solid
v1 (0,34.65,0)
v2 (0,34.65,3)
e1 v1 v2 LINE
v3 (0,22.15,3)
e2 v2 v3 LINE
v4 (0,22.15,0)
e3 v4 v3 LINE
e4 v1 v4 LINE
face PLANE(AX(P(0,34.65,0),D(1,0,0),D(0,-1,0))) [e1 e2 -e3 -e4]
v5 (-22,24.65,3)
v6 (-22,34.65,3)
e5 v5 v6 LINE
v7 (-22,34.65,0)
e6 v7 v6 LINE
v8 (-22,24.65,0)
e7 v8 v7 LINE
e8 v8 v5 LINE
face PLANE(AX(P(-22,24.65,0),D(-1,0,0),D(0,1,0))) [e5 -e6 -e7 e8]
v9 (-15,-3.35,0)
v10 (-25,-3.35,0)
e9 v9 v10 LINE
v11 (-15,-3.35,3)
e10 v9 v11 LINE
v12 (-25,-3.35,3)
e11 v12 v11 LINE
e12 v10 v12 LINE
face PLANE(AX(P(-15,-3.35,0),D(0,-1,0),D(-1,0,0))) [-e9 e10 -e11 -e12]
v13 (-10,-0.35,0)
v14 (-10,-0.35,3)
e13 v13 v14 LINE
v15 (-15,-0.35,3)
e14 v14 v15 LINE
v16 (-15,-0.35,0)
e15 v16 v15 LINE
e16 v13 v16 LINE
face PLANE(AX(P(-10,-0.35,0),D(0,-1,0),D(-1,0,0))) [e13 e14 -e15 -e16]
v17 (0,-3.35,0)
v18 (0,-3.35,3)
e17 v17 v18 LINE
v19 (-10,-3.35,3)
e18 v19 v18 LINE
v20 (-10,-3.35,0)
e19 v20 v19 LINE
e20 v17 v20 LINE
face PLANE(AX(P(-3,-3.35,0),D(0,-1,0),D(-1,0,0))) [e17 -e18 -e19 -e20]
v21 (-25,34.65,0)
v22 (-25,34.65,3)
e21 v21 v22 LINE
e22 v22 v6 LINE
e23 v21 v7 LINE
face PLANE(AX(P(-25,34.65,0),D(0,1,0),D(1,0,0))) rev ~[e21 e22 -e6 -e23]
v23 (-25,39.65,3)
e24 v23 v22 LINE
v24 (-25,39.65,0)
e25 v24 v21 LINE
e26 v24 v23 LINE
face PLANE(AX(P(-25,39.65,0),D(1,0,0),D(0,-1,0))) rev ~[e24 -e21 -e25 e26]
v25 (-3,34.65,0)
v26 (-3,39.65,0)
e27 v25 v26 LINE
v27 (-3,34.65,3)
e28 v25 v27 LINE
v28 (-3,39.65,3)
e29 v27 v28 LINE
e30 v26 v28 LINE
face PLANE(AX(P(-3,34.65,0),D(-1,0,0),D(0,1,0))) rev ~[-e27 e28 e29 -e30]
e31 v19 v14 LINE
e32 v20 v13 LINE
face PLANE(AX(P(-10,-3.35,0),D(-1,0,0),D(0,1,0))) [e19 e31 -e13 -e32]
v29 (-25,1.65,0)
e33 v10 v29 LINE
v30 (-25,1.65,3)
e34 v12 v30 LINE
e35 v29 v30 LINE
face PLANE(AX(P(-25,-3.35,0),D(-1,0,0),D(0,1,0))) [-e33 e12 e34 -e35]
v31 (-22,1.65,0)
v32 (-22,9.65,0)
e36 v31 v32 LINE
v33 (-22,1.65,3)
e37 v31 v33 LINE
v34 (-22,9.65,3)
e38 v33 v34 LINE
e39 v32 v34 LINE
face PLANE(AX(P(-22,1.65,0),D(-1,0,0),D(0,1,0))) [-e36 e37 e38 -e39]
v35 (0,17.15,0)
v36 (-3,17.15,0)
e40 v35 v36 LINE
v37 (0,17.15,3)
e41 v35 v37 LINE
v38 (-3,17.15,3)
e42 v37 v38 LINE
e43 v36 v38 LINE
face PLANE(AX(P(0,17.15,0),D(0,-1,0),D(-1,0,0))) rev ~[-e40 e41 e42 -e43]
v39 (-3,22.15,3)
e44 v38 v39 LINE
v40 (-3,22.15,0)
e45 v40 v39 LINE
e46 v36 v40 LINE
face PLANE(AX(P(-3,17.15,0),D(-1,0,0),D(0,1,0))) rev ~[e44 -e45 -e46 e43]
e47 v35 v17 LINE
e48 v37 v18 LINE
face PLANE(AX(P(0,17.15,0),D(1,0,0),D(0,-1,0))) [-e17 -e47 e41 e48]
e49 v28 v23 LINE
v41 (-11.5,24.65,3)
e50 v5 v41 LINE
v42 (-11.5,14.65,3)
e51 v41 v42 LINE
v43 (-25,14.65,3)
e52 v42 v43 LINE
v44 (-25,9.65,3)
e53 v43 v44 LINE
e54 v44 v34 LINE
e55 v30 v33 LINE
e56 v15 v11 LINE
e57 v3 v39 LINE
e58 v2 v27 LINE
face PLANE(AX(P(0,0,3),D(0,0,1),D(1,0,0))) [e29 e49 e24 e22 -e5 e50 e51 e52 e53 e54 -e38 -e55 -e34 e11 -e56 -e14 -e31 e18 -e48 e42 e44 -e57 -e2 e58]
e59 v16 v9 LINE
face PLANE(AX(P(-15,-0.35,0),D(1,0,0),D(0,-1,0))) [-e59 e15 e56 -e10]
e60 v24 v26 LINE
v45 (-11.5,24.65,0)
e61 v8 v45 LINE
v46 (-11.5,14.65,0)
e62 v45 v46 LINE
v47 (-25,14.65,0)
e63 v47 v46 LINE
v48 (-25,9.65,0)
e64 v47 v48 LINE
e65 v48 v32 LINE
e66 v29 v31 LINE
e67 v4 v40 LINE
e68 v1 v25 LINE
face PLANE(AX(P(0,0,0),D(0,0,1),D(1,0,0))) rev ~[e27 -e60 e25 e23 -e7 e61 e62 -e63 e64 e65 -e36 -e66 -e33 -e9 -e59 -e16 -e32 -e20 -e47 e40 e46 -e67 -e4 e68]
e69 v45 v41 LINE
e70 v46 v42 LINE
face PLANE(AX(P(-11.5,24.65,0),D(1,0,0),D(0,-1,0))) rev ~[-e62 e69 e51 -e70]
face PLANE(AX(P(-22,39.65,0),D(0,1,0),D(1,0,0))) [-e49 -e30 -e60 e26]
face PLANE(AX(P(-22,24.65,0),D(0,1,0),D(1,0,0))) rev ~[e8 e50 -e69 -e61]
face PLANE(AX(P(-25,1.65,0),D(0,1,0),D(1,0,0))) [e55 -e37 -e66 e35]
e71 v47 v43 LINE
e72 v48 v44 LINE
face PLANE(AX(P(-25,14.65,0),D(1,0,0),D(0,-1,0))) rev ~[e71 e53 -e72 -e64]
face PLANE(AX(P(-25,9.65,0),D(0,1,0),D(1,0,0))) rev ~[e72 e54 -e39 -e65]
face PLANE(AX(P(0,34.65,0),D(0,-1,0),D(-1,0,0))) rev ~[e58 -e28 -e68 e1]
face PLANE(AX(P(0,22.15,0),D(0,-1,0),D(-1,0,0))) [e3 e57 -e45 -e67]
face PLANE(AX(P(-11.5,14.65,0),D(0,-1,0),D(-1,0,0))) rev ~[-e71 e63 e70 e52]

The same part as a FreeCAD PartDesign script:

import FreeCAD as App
import Part
import Sketcher

V = App.Vector
Q = App.Units.Quantity


def add_polygon(sketch, points):
    """Adds a closed chain of lines whose ends are joined by coincident constraints."""
    first, n = sketch.GeometryCount, len(points)
    for a, b in zip(points, points[1:] + points[:1]):
        sketch.addGeometry(Part.LineSegment(App.Vector(*a, 0), App.Vector(*b, 0)), False)
    for i in range(n):
        sketch.addConstraint(Sketcher.Constraint("Coincident", first + i, 2, first + (i + 1) % n, 1))

doc = App.newDocument("Part")
body = doc.addObject("PartDesign::Body", "Body")

sketch1 = body.newObject("Sketcher::SketchObject", "Sketch")
sketch1.AttachmentSupport = (doc.getObject("XY_Plane"), [""])
sketch1.MapMode = "FlatFace"
add_polygon(sketch1, [(-3, 17.1), (-3, 22.1), (0, 22.1), (0, 34.6), (-3, 34.6), (-3, 39.6), (-25, 39.6), (-25, 34.6), (-22, 34.6), (-22, 24.6), (-11.5, 24.6), (-11.5, 14.7), (-25, 14.7), (-25, 9.7), (-22, 9.7), (-22, 1.6), (-25, 1.6), (-25, -3.4), (-15, -3.4), (-15, -0.3), (-10, -0.3), (-10, -3.4), (0, -3.4), (0, 17.1)])
sketch1.addConstraint([
    Sketcher.Constraint("Vertical", 0),
    Sketcher.Constraint("Horizontal", 1),
    Sketcher.Constraint("Vertical", 2),
    Sketcher.Constraint("Horizontal", 3),
    Sketcher.Constraint("Vertical", 4),
    Sketcher.Constraint("Horizontal", 5),
    Sketcher.Constraint("Vertical", 6),
    Sketcher.Constraint("Horizontal", 7),
    Sketcher.Constraint("Vertical", 8),
    Sketcher.Constraint("Horizontal", 9),
    Sketcher.Constraint("Vertical", 10),
    Sketcher.Constraint("Horizontal", 11),
    Sketcher.Constraint("Vertical", 12),
    Sketcher.Constraint("Horizontal", 13),
    Sketcher.Constraint("Vertical", 14),
    Sketcher.Constraint("Horizontal", 15),
    Sketcher.Constraint("Vertical", 16),
    Sketcher.Constraint("Horizontal", 17),
    Sketcher.Constraint("Vertical", 18),
    Sketcher.Constraint("Horizontal", 19),
    Sketcher.Constraint("Vertical", 20),
    Sketcher.Constraint("Horizontal", 21),
    Sketcher.Constraint("Vertical", 22),
    Sketcher.Constraint("Horizontal", 23),
    Sketcher.Constraint("PointOnObject", 1, 2, -2),
    Sketcher.Constraint("PointOnObject", 21, 2, -2),
    Sketcher.Constraint("Horizontal", 3, 2, 6, 2),
    Sketcher.Constraint("Horizontal", 17, 2, 20, 2),
    Sketcher.Constraint("Vertical", 0, 2, 3, 2),
    Sketcher.Constraint("Vertical", 6, 2, 11, 2),
    Sketcher.Constraint("Vertical", 8, 2, 13, 2),
    Sketcher.Constraint("Vertical", 12, 2, 15, 2),
    Sketcher.Constraint("Equal", 3, 7),
    Sketcher.Constraint("Equal", 17, 21),
    Sketcher.Constraint("Equal", 19, 0),
    Sketcher.Constraint("Equal", 0, 4),
    Sketcher.Constraint("Equal", 21, 8),
    Sketcher.Constraint("Equal", 8, 10),
    Sketcher.Constraint("Equal", 6, 12),
    Sketcher.Constraint("Equal", 12, 16),
    Sketcher.Constraint("Equal", 23, 18),
    Sketcher.Constraint("DistanceX", 1, 1, 1, 2, Q("3 mm")),
    Sketcher.Constraint("DistanceX", 17, 1, 17, 2, Q("10 mm")),
    Sketcher.Constraint("DistanceX", 19, 1, 19, 2, Q("5 mm")),
    Sketcher.Constraint("DistanceY", 18, 2, 13, 2, Q("10 mm")),
    Sketcher.Constraint("DistanceX", 9, 2, 0, 2, Q("8.5 mm")),
    Sketcher.Constraint("DistanceY", 2, 1, 2, 2, Q("12.5 mm")),
    Sketcher.Constraint("DistanceY", -1, 1, 0, 2, Q("22.15 mm")),
])
pad1 = body.newObject("PartDesign::Pad", "Pad")
pad1.Profile = sketch1
pad1.Length = 3

doc.recompute()
